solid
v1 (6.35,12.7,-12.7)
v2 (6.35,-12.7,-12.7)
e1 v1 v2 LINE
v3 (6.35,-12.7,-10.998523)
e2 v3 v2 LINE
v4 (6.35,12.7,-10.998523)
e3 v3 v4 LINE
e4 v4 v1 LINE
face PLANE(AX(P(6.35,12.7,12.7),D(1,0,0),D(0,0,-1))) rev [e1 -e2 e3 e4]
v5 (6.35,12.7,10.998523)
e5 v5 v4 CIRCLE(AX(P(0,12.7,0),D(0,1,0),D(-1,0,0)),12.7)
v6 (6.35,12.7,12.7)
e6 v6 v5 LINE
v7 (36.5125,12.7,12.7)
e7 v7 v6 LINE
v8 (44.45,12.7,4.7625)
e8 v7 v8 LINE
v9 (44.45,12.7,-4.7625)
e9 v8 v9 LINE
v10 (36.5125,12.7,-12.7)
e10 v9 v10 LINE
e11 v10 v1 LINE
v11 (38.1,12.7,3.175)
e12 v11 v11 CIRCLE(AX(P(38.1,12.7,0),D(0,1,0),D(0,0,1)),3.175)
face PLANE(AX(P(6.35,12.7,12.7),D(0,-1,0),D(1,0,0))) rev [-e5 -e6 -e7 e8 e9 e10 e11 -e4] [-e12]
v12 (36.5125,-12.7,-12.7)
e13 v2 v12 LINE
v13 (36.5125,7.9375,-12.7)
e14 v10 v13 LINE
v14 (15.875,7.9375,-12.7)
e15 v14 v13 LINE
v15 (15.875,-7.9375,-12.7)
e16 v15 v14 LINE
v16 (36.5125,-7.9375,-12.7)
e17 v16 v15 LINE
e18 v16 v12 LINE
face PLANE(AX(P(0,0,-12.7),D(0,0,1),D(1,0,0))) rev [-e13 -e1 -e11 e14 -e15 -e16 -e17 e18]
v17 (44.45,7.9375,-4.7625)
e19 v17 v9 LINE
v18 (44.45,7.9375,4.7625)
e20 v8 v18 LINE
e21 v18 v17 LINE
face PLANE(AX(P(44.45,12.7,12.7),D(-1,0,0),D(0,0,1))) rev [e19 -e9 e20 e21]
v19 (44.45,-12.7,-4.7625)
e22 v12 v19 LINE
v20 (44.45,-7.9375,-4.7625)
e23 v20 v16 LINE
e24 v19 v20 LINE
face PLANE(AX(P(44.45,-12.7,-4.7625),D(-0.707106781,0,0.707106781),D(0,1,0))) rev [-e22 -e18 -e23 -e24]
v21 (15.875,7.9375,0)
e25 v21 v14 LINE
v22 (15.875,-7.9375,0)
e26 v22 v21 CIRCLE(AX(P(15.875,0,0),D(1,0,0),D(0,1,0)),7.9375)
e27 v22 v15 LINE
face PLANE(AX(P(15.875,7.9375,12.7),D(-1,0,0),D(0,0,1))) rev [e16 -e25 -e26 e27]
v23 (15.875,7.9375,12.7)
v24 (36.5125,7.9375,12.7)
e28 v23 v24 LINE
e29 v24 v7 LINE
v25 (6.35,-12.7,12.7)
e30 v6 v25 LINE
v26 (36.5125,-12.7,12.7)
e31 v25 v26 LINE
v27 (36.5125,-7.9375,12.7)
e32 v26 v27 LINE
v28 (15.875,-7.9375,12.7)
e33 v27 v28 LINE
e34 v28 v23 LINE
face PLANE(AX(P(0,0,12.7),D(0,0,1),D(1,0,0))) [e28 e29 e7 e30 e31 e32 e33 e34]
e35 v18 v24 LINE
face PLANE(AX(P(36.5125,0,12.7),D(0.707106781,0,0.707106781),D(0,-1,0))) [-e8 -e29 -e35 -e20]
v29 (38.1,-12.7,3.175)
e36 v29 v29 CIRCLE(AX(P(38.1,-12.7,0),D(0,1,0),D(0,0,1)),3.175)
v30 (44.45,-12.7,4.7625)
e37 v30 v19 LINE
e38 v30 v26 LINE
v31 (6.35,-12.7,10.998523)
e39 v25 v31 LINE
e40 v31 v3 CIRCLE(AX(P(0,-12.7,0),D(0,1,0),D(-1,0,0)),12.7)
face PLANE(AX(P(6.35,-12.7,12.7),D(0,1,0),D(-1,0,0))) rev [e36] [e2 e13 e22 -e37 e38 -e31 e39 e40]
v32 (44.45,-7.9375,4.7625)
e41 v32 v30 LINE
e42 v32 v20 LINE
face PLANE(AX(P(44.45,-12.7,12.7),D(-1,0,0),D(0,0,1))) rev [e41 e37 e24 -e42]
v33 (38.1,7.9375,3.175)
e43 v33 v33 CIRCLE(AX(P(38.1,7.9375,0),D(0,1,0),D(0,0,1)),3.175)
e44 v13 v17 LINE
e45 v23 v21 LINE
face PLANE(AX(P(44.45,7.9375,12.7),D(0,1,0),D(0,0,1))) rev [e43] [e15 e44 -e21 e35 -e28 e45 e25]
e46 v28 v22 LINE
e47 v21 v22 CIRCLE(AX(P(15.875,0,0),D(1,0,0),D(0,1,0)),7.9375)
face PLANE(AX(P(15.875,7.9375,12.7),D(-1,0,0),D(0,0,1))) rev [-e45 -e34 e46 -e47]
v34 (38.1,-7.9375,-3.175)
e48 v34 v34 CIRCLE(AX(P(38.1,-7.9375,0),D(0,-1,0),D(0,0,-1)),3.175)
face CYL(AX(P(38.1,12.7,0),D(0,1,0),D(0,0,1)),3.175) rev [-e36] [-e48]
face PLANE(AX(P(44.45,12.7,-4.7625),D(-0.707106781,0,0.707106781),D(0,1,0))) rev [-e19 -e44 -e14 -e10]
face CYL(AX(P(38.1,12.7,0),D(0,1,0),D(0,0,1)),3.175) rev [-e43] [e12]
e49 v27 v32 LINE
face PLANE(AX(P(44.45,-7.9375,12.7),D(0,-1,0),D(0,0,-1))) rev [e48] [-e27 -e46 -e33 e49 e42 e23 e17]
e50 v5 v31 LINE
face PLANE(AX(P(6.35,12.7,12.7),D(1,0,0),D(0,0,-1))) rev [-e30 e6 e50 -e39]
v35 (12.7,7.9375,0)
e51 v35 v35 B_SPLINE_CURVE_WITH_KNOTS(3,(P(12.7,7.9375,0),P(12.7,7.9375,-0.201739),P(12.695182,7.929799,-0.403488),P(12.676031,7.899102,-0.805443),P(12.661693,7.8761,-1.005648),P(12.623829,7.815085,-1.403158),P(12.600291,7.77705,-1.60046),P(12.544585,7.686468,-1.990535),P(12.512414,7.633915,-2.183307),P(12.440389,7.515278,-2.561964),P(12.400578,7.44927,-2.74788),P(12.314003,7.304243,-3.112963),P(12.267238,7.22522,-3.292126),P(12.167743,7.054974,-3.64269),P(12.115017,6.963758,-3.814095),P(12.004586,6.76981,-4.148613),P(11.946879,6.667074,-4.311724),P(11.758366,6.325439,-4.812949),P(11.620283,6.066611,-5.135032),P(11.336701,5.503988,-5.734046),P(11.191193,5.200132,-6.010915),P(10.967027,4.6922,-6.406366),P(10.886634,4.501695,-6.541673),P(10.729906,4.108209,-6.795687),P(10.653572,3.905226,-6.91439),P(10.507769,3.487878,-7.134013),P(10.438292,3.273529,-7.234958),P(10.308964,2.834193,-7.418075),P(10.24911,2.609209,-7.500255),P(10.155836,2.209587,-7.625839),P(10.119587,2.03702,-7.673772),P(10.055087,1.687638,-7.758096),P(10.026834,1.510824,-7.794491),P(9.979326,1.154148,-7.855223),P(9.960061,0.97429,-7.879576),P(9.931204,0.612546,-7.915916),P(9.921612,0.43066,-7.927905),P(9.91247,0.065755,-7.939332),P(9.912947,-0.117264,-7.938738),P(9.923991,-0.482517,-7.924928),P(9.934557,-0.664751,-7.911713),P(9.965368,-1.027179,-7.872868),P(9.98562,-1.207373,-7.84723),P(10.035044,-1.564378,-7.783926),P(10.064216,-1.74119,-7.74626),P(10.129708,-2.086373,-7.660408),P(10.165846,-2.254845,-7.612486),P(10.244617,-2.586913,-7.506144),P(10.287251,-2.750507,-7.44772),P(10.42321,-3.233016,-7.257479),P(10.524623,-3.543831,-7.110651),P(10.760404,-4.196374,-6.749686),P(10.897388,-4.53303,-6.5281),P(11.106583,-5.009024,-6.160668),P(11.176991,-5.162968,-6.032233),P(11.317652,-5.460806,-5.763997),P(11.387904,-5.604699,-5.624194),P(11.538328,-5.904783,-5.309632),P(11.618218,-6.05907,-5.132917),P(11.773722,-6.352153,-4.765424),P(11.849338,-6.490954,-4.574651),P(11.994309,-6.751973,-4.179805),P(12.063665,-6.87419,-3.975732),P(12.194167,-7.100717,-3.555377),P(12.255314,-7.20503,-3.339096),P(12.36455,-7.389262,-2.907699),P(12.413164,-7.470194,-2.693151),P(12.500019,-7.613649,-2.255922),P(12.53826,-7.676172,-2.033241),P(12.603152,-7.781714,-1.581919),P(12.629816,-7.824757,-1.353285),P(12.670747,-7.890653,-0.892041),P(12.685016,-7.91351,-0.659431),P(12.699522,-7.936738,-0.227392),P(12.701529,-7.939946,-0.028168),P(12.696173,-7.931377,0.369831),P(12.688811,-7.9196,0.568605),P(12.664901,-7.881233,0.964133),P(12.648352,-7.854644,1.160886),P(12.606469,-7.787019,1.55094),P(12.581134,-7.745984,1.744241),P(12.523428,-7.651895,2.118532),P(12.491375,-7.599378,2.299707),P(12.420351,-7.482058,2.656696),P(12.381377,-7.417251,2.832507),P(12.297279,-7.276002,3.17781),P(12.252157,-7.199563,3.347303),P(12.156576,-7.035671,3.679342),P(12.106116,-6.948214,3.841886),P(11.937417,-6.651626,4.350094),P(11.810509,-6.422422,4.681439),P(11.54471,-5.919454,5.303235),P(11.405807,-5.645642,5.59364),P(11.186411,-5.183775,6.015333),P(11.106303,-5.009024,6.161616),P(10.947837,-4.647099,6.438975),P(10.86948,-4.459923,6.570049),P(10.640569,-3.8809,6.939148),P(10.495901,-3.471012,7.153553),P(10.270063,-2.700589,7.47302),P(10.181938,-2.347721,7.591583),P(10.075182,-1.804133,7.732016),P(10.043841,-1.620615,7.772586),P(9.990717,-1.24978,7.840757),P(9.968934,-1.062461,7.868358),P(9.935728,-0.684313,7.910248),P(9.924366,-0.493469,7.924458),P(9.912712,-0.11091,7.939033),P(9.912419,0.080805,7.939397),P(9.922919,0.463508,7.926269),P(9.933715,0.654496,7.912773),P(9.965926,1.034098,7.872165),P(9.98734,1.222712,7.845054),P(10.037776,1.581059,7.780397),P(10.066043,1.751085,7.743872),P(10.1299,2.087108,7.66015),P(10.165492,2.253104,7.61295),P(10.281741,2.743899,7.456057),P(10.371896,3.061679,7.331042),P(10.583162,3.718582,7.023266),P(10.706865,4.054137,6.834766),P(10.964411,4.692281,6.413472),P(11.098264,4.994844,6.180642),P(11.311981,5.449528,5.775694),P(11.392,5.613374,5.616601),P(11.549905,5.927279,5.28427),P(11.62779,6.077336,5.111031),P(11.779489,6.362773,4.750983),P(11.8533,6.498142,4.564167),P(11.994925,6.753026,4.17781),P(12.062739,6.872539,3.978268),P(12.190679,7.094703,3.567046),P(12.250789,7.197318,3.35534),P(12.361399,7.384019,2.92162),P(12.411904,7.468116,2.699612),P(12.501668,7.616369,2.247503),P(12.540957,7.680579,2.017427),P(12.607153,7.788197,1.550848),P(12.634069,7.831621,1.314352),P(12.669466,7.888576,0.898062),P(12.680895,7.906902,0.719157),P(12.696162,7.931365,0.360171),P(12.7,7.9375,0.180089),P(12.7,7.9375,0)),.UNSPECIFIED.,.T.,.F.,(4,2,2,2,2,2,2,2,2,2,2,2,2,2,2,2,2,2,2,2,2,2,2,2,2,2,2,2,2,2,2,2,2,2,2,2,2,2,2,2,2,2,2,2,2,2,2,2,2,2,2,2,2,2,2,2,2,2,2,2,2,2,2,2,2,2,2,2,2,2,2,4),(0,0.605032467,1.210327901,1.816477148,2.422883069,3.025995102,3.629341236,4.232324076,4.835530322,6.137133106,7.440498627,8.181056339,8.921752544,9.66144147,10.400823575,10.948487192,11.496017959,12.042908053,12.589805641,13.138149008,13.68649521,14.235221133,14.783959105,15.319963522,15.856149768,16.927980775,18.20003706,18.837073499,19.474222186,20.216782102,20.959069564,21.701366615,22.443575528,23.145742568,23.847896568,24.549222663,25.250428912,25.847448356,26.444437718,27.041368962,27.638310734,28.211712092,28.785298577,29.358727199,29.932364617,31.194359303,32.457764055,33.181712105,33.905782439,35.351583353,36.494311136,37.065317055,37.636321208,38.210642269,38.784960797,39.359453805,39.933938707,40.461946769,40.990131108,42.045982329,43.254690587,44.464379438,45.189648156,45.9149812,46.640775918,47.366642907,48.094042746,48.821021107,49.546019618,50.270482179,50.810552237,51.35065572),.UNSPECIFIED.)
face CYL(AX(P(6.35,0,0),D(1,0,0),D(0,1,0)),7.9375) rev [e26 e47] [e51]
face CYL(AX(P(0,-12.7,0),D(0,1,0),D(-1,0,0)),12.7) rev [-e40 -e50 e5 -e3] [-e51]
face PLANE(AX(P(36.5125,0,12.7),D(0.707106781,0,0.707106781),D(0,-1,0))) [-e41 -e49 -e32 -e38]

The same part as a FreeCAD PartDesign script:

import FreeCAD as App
import Part
import Sketcher

V = App.Vector
Q = App.Units.Quantity


def edges_at(feature, points):
    """Names of the edges that pass closest to the given points."""
    edges = feature.Shape.Edges
    near = lambda p: min(range(len(edges)), key=lambda i: edges[i].distToShape(Part.Vertex(*p))[0])
    return sorted({f"Edge{near(p) + 1}" for p in points})

doc = App.newDocument("Part")
params = doc.addObject("Spreadsheet::Sheet", "Params")
for row, (alias, value) in enumerate([
    ("sketch1_height", "1 in"),
    ("sketch1_width", "1.5 in"),
    ("sketch1_width2", "1.125 in"),
    ("sketch1_height2", "0.1875 in"),
    ("pad1_length", "1 in"),
    ("sketch2_diameter", "0.25 in"),
    ("hole_diameter", "0.25 in"),
    ("chamfer_size", "0.3125 in"),
    ("sketch3_diameter", "0.625 in"),
    ("sketch4_diameter", "1 in"),
], start=1):
    params.set(f"A{row}", alias)
    params.set(f"B{row}", "=" + value)
    params.setAlias(f"B{row}", alias)

body = doc.addObject("PartDesign::Body", "Body")

# Sketch on XY plane
sketch1 = doc.addObject("Sketcher::SketchObject", "Sketch")
body.addObject(sketch1)
sketch1.AttachmentSupport = (doc.XY_Plane, [""])
sketch1.MapMode = "FlatFace"
sketch1.addGeometry(Part.LineSegment(V(44.5, 12.7, 0), V(6.3, 12.7, 0)), False)
sketch1.addGeometry(Part.LineSegment(V(6.3, 12.7, 0), V(6.3, -12.7, 0)), False)
sketch1.addGeometry(Part.LineSegment(V(6.3, -12.7, 0), V(44.5, -12.7, 0)), False)
sketch1.addGeometry(Part.LineSegment(V(44.5, -12.7, 0), V(44.5, -7.9, 0)), False)
sketch1.addGeometry(Part.LineSegment(V(44.5, -7.9, 0), V(15.9, -7.9, 0)), False)
sketch1.addGeometry(Part.LineSegment(V(15.9, -7.9, 0), V(15.9, 7.9, 0)), False)
sketch1.addGeometry(Part.LineSegment(V(15.9, 7.9, 0), V(44.5, 7.9, 0)), False)
sketch1.addGeometry(Part.LineSegment(V(44.5, 7.9, 0), V(44.5, 12.7, 0)), False)
sketch1.addConstraint(Sketcher.Constraint("Coincident", 0, 2, 1, 1))
sketch1.addConstraint(Sketcher.Constraint("Coincident", 1, 2, 2, 1))
sketch1.addConstraint(Sketcher.Constraint("Coincident", 2, 2, 3, 1))
sketch1.addConstraint(Sketcher.Constraint("Coincident", 3, 2, 4, 1))
sketch1.addConstraint(Sketcher.Constraint("Coincident", 4, 2, 5, 1))
sketch1.addConstraint(Sketcher.Constraint("Coincident", 5, 2, 6, 1))
sketch1.addConstraint(Sketcher.Constraint("Coincident", 6, 2, 7, 1))
sketch1.addConstraint(Sketcher.Constraint("Coincident", 7, 2, 0, 1))
sketch1.addConstraint(Sketcher.Constraint("Horizontal", 0))
sketch1.addConstraint(Sketcher.Constraint("Vertical", 1))
sketch1.addConstraint(Sketcher.Constraint("Horizontal", 2))
sketch1.addConstraint(Sketcher.Constraint("Vertical", 3))
sketch1.addConstraint(Sketcher.Constraint("Horizontal", 4))
sketch1.addConstraint(Sketcher.Constraint("Vertical", 5))
sketch1.addConstraint(Sketcher.Constraint("Horizontal", 6))
sketch1.addConstraint(Sketcher.Constraint("Vertical", 7))
sketch1.addConstraint(Sketcher.Constraint("Symmetric", 3, 2, 6, 2, -1))
sketch1.addConstraint(Sketcher.Constraint("Equal", 3, 7))
sketch1.addConstraint(Sketcher.Constraint("DistanceY", 1, 2, 1, 1, Q("1 in")))
sketch1.addConstraint(Sketcher.Constraint("DistanceX", 0, 2, 0, 1, Q("1.5 in")))
sketch1.addConstraint(Sketcher.Constraint("DistanceX", 4, 2, 4, 1, Q("1.125 in")))
sketch1.addConstraint(Sketcher.Constraint("DistanceY", 3, 1, 3, 2, Q("0.1875 in")))
sketch1.addConstraint(Sketcher.Constraint("DistanceX", -1, 1, 0, 2, Q("0.25 in")))
sketch1.setExpression("Constraints[18]", "Params.sketch1_height")
sketch1.setExpression("Constraints[19]", "Params.sketch1_width")
sketch1.setExpression("Constraints[20]", "Params.sketch1_width2")
sketch1.setExpression("Constraints[21]", "Params.sketch1_height2")
pad1 = doc.addObject("PartDesign::Pad", "Pad")
body.addObject(pad1)
pad1.Profile = sketch1
pad1.setExpression("Length", "Params.pad1_length")
pad1.Midplane = True

# Sketch on XZ plane
sketch2 = doc.addObject("Sketcher::SketchObject", "Sketch001")
body.addObject(sketch2)
sketch2.AttachmentSupport = (doc.XZ_Plane, [""])
sketch2.MapMode = "FlatFace"
sketch2.AttachmentOffset = App.Placement(V(0, 0, -0.5 * 25.4), App.Rotation())
sketch2.addGeometry(Part.Circle(V(38.1, 0, 0), V(0, 0, 1), 3.2), False)
sketch2.addConstraint(Sketcher.Constraint("PointOnObject", 0, 3, -1))
sketch2.addConstraint(Sketcher.Constraint("Diameter", 0, Q("0.25 in")))
sketch2.addConstraint(Sketcher.Constraint("DistanceX", -1, 1, 0, 3, Q("1.5 in")))
sketch2.setExpression("Constraints[1]", "Params.sketch2_diameter")
doc.recompute()
hole = doc.addObject("PartDesign::Hole", "Hole")
body.addObject(hole)
hole.Profile = sketch2
hole.ThreadType = "None"
hole.setExpression("Diameter", "Params.hole_diameter")
hole.DepthType = "ThroughAll"
hole.Reversed = True
doc.recompute()

chamfer = doc.addObject("PartDesign::Chamfer", "Chamfer")
body.addObject(chamfer)
chamfer.Base = (hole, edges_at(hole, [
    (44.45, 10.319, 12.7),
    (44.45, -10.319, 12.7),
    (44.45, -10.319, -12.7),
    (44.45, 10.319, -12.7),
]))
chamfer.setExpression("Size", "Params.chamfer_size")

# Sketch on YZ plane
sketch3 = doc.addObject("Sketcher::SketchObject", "Sketch002")
body.addObject(sketch3)
sketch3.AttachmentSupport = (doc.YZ_Plane, [""])
sketch3.MapMode = "FlatFace"
sketch3.AttachmentOffset = App.Placement(V(0, 0, 0.625 * 25.4), App.Rotation())
sketch3.addGeometry(Part.Circle(V(0, 0, 0), V(0, 0, 1), 8), False)
sketch3.addConstraint(Sketcher.Constraint("Coincident", 0, 3, -1, 1))
sketch3.addConstraint(Sketcher.Constraint("Diameter", 0, Q("0.625 in")))
sketch3.setExpression("Constraints[1]", "Params.sketch3_diameter")
pocket1 = doc.addObject("PartDesign::Pocket", "Pocket")
body.addObject(pocket1)
pocket1.Profile = sketch3
pocket1.Type = "ThroughAll"

# Sketch on XZ plane
sketch4 = doc.addObject("Sketcher::SketchObject", "Sketch003")
body.addObject(sketch4)
sketch4.AttachmentSupport = (doc.XZ_Plane, [""])
sketch4.MapMode = "FlatFace"
sketch4.AttachmentOffset = App.Placement(V(0, 0, -0.5 * 25.4), App.Rotation())
sketch4.addGeometry(Part.Circle(V(0, 0, 0), V(0, 0, 1), 13), False)
sketch4.addConstraint(Sketcher.Constraint("Coincident", 0, 3, -1, 1))
sketch4.addConstraint(Sketcher.Constraint("Diameter", 0, Q("1 in")))
sketch4.setExpression("Constraints[1]", "Params.sketch4_diameter")
pocket2 = doc.addObject("PartDesign::Pocket", "Pocket001")
body.addObject(pocket2)
pocket2.Profile = sketch4
pocket2.Type = "ThroughAll"
pocket2.Reversed = True

doc.recompute()
